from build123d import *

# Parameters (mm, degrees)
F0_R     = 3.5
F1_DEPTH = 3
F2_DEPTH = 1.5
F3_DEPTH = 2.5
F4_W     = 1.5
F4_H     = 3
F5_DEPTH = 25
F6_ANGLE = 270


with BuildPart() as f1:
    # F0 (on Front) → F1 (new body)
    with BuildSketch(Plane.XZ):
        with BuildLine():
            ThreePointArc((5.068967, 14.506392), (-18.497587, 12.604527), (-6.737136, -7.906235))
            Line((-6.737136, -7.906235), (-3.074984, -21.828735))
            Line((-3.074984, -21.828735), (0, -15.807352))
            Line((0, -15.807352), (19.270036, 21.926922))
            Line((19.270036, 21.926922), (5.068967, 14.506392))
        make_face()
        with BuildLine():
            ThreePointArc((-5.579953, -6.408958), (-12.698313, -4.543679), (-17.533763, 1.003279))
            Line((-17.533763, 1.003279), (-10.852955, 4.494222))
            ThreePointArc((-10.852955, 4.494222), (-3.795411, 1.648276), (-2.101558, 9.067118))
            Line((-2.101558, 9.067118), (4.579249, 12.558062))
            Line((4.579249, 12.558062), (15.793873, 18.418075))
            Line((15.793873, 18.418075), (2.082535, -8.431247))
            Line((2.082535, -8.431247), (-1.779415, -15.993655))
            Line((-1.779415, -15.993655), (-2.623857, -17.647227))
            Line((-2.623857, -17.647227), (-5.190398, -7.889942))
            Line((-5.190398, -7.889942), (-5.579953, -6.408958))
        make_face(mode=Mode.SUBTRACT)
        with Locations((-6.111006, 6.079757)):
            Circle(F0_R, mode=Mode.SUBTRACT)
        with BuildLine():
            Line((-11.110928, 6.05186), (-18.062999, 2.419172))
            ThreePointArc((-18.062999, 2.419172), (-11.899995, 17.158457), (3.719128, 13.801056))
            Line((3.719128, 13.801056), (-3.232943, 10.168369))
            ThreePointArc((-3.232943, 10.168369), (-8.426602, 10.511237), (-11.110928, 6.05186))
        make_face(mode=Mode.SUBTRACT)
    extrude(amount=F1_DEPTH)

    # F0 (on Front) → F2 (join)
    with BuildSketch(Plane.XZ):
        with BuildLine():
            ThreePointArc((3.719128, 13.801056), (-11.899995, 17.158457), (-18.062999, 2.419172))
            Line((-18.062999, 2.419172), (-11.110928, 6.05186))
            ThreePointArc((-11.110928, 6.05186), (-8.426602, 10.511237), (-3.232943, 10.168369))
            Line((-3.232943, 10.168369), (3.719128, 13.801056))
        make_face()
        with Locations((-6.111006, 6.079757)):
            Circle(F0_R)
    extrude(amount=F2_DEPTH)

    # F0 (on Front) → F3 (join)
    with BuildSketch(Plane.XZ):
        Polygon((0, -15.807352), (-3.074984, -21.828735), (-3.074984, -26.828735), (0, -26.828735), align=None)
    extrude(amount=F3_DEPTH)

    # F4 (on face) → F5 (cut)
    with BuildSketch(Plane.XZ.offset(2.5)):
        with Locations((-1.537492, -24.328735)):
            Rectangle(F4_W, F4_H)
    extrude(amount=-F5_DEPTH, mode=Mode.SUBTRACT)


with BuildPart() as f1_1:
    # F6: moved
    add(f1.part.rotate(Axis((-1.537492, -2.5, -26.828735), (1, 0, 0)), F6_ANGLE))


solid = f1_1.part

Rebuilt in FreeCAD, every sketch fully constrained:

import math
import FreeCAD as App
import Part
import Sketcher

V = App.Vector
Q = App.Units.Quantity

doc = App.newDocument("Part")
body = doc.addObject("PartDesign::Body", "Body")

sketch1 = doc.addObject("Sketcher::SketchObject", "Sketch")
body.addObject(sketch1)
sketch1.AttachmentSupport = (doc.XZ_Plane, [""])
sketch1.MapMode = "FlatFace"
sketch1.addGeometry(Part.ArcOfCircle(Part.Circle(V(-6.1, 6.1, 0), V(0, 0, 1), 14), math.radians(37), math.radians(267)), False)
sketch1.addGeometry(Part.LineSegment(V(-6.7, -7.9, 0), V(-3.1, -21.8, 0)), False)
sketch1.addGeometry(Part.LineSegment(V(-3.1, -21.8, 0), V(0, -15.8, 0)), False)
sketch1.addGeometry(Part.LineSegment(V(0, -15.8, 0), V(19.3, 21.9, 0)), False)
sketch1.addGeometry(Part.LineSegment(V(19.3, 21.9, 0), V(5.1, 14.5, 0)), False)
sketch1.addGeometry(Part.LineSegment(V(-5.2, -7.9, 0), V(-5.6, -6.4, 0)), False)
sketch1.addGeometry(Part.ArcOfCircle(Part.Circle(V(-6.1, 6.1, 0), V(0, 0, 1), 12.5), math.radians(-156), math.radians(-88)), False)
sketch1.addGeometry(Part.LineSegment(V(-17.5, 1, 0), V(-10.9, 4.5, 0)), False)
sketch1.addGeometry(Part.ArcOfCircle(Part.Circle(V(-6.1, 6.1, 0), V(0, 0, 1), 5), math.radians(-162), math.radians(37)), False)
sketch1.addGeometry(Part.LineSegment(V(-2.1, 9.1, 0), V(4.6, 12.6, 0)), False)
sketch1.addGeometry(Part.LineSegment(V(4.6, 12.6, 0), V(15.8, 18.4, 0)), False)
sketch1.addGeometry(Part.LineSegment(V(15.8, 18.4, 0), V(2.1, -8.4, 0)), False)
sketch1.addGeometry(Part.LineSegment(V(2.1, -8.4, 0), V(-1.8, -16, 0)), False)
sketch1.addGeometry(Part.LineSegment(V(-1.8, -16, 0), V(-2.6, -17.6, 0)), False)
sketch1.addGeometry(Part.LineSegment(V(-2.6, -17.6, 0), V(-5.2, -7.9, 0)), False)
sketch1.addGeometry(Part.Circle(V(-6.1, 6.1, 0), V(0, 0, 1), 3.5), False)
sketch1.addGeometry(Part.ArcOfCircle(Part.Circle(V(-6.1, 6.1, 0), V(0, 0, 1), 5), math.radians(55), math.radians(180)), False)
sketch1.addGeometry(Part.LineSegment(V(-11.1, 6.1, 0), V(-18.1, 2.4, 0)), False)
sketch1.addGeometry(Part.ArcOfCircle(Part.Circle(V(-6.1, 6.1, 0), V(0, 0, 1), 12.5), math.radians(38), math.radians(197)), False)
sketch1.addGeometry(Part.LineSegment(V(3.7, 13.8, 0), V(-3.2, 10.2, 0)), False)
sketch1.addConstraint(Sketcher.Constraint("Coincident", 0, 2, 1, 1))
sketch1.addConstraint(Sketcher.Constraint("Coincident", 1, 2, 2, 1))
sketch1.addConstraint(Sketcher.Constraint("Coincident", 2, 2, 3, 1))
sketch1.addConstraint(Sketcher.Constraint("Coincident", 3, 2, 4, 1))
sketch1.addConstraint(Sketcher.Constraint("Coincident", 4, 2, 0, 1))
sketch1.addConstraint(Sketcher.Constraint("Coincident", 5, 2, 6, 2))
sketch1.addConstraint(Sketcher.Constraint("Coincident", 6, 1, 7, 1))
sketch1.addConstraint(Sketcher.Constraint("Coincident", 7, 2, 8, 1))
sketch1.addConstraint(Sketcher.Constraint("Coincident", 8, 2, 9, 1))
sketch1.addConstraint(Sketcher.Constraint("Coincident", 9, 2, 10, 1))
sketch1.addConstraint(Sketcher.Constraint("Coincident", 10, 2, 11, 1))
sketch1.addConstraint(Sketcher.Constraint("Coincident", 11, 2, 12, 1))
sketch1.addConstraint(Sketcher.Constraint("Coincident", 12, 2, 13, 1))
sketch1.addConstraint(Sketcher.Constraint("Coincident", 13, 2, 14, 1))
sketch1.addConstraint(Sketcher.Constraint("Coincident", 14, 2, 5, 1))
sketch1.addConstraint(Sketcher.Constraint("Coincident", 16, 2, 17, 1))
sketch1.addConstraint(Sketcher.Constraint("Coincident", 17, 2, 18, 2))
sketch1.addConstraint(Sketcher.Constraint("Coincident", 18, 1, 19, 1))
sketch1.addConstraint(Sketcher.Constraint("Coincident", 19, 2, 16, 1))
sketch1.addConstraint(Sketcher.Constraint("Coincident", 6, 3, 0, 3))
sketch1.addConstraint(Sketcher.Constraint("Coincident", 8, 3, 0, 3))
sketch1.addConstraint(Sketcher.Constraint("Coincident", 15, 3, 0, 3))
sketch1.addConstraint(Sketcher.Constraint("Coincident", 16, 3, 0, 3))
sketch1.addConstraint(Sketcher.Constraint("Coincident", 18, 3, 0, 3))
sketch1.addConstraint(Sketcher.Constraint("Equal", 8, 16))
sketch1.addConstraint(Sketcher.Constraint("Equal", 6, 18))
sketch1.addConstraint(Sketcher.Constraint("PointOnObject", 2, 2, -2))
sketch1.addConstraint(Sketcher.Constraint("Parallel", 2, 3))
sketch1.addConstraint(Sketcher.Constraint("Parallel", 1, 5))
sketch1.addConstraint(Sketcher.Constraint("Parallel", 4, 7))
sketch1.addConstraint(Sketcher.Constraint("Parallel", 7, 9))
sketch1.addConstraint(Sketcher.Constraint("Parallel", 9, 10))
sketch1.addConstraint(Sketcher.Constraint("Parallel", 3, 11))
sketch1.addConstraint(Sketcher.Constraint("Parallel", 11, 12))
sketch1.addConstraint(Sketcher.Constraint("Parallel", 12, 13))
sketch1.addConstraint(Sketcher.Constraint("Parallel", 5, 14))
sketch1.addConstraint(Sketcher.Constraint("Parallel", 10, 17))
sketch1.addConstraint(Sketcher.Constraint("Parallel", 17, 19))
sketch1.addConstraint(Sketcher.Constraint("Equal", 7, 9))
sketch1.addConstraint(Sketcher.Constraint("Equal", 17, 19))
sketch1.addConstraint(Sketcher.Constraint("Diameter", 15, Q("7 mm")))
sketch1.addConstraint(Sketcher.Constraint("Radius", 0, Q("14 mm")))
sketch1.addConstraint(Sketcher.Constraint("Radius", 8, Q("5 mm")))
sketch1.addConstraint(Sketcher.Constraint("Radius", 6, Q("12.500002 mm")))
sketch1.addConstraint(Sketcher.Constraint("DistanceX", 17, 2, -1, 1, Q("18.062999 mm")))
sketch1.addConstraint(Sketcher.Constraint("DistanceY", 1, 2, 0, 2, Q("13.9225 mm")))
sketch1.addConstraint(Sketcher.Constraint("DistanceY", 15, 3, 18, 1, Q("7.721299 mm")))
sketch1.addConstraint(Sketcher.Constraint("Distance", 1, Q("14.396088 mm")))
sketch1.addConstraint(Sketcher.Constraint("Distance", 4, Q("16.022941 mm")))
sketch1.addConstraint(Sketcher.Constraint("Distance", 5, Q("1.531361 mm")))
sketch1.addConstraint(Sketcher.Constraint("Distance", 10, Q("12.653361 mm")))
sketch1.addConstraint(Sketcher.Constraint("Distance", 11, Q("30.147751 mm")))
sketch1.addConstraint(Sketcher.Constraint("Distance", 14, Q("10.089189 mm")))
sketch1.addConstraint(Sketcher.Constraint("Distance", 17, Q("7.84396 mm")))
sketch1.addConstraint(Sketcher.Constraint("DistanceY", -1, 1, 6, 3, Q("6.079758 mm")))
sketch1.addConstraint(Sketcher.Constraint("DistanceY", -1, 1, 6, 1, Q("1.003279 mm")))
sketch1.addConstraint(Sketcher.Constraint("DistanceY", -1, 1, 8, 2, Q("9.067118 mm")))
sketch1.addConstraint(Sketcher.Constraint("DistanceY", 14, 2, -1, 1, Q("7.889942 mm")))
sketch1.addConstraint(Sketcher.Constraint("DistanceX", 0, 2, 18, 3, Q("0.62613 mm")))
sketch1.addConstraint(Sketcher.Constraint("DistanceX", 1, 2, 12, 2, Q("1.295569 mm")))
pad1 = doc.addObject("PartDesign::Pad", "Pad")
body.addObject(pad1)
pad1.Profile = sketch1
pad1.Length = 3

sketch2 = doc.addObject("Sketcher::SketchObject", "Sketch001")
body.addObject(sketch2)
sketch2.AttachmentSupport = (doc.XZ_Plane, [""])
sketch2.MapMode = "FlatFace"
sketch2.addGeometry(Part.ArcOfCircle(Part.Circle(V(-6.1, 6.1, 0), V(0, 0, 1), 12.5), math.radians(38), math.radians(197)), False)
sketch2.addGeometry(Part.LineSegment(V(-18.1, 2.4, 0), V(-11.1, 6.1, 0)), False)
sketch2.addGeometry(Part.ArcOfCircle(Part.Circle(V(-6.1, 6.1, 0), V(0, 0, 1), 5), math.radians(55), math.radians(180)), False)
sketch2.addGeometry(Part.LineSegment(V(-3.2, 10.2, 0), V(3.7, 13.8, 0)), False)
sketch2.addGeometry(Part.Circle(V(-6.1, 6.1, 0), V(0, 0, 1), 3.5), False)
sketch2.addConstraint(Sketcher.Constraint("Coincident", 0, 2, 1, 1))
sketch2.addConstraint(Sketcher.Constraint("Coincident", 1, 2, 2, 2))
sketch2.addConstraint(Sketcher.Constraint("Coincident", 2, 1, 3, 1))
sketch2.addConstraint(Sketcher.Constraint("Coincident", 3, 2, 0, 1))
sketch2.addConstraint(Sketcher.Constraint("Coincident", 2, 3, 0, 3))
sketch2.addConstraint(Sketcher.Constraint("Coincident", 4, 3, 0, 3))
sketch2.addConstraint(Sketcher.Constraint("Parallel", 1, 3))
sketch2.addConstraint(Sketcher.Constraint("Equal", 1, 3))
sketch2.addConstraint(Sketcher.Constraint("Diameter", 4, Q("7 mm")))
sketch2.addConstraint(Sketcher.Constraint("Radius", 2, Q("4.999999 mm")))
sketch2.addConstraint(Sketcher.Constraint("Radius", 0, Q("12.5 mm")))
sketch2.addConstraint(Sketcher.Constraint("DistanceX", 0, 2, -1, 1, Q("18.062999 mm")))
sketch2.addConstraint(Sketcher.Constraint("DistanceY", 4, 3, 3, 2, Q("7.721299 mm")))
sketch2.addConstraint(Sketcher.Constraint("Distance", 1, Q("7.84396 mm")))
sketch2.addConstraint(Sketcher.Constraint("DistanceY", -1, 1, 1, 2, Q("6.05186 mm")))
pad2 = doc.addObject("PartDesign::Pad", "Pad001")
body.addObject(pad2)
pad2.Profile = sketch2
pad2.Length = 1.5

sketch3 = doc.addObject("Sketcher::SketchObject", "Sketch002")
body.addObject(sketch3)
sketch3.AttachmentSupport = (doc.XZ_Plane, [""])
sketch3.MapMode = "FlatFace"
sketch3.addGeometry(Part.LineSegment(V(0, -15.8, 0), V(-3.1, -21.8, 0)), False)
sketch3.addGeometry(Part.LineSegment(V(-3.1, -21.8, 0), V(-3.1, -26.8, 0)), False)
sketch3.addGeometry(Part.LineSegment(V(-3.1, -26.8, 0), V(0, -26.8, 0)), False)
sketch3.addGeometry(Part.LineSegment(V(0, -26.8, 0), V(0, -15.8, 0)), False)
sketch3.addConstraint(Sketcher.Constraint("Coincident", 0, 2, 1, 1))
sketch3.addConstraint(Sketcher.Constraint("Coincident", 1, 2, 2, 1))
sketch3.addConstraint(Sketcher.Constraint("Coincident", 2, 2, 3, 1))
sketch3.addConstraint(Sketcher.Constraint("Coincident", 3, 2, 0, 1))
sketch3.addConstraint(Sketcher.Constraint("Vertical", 1))
sketch3.addConstraint(Sketcher.Constraint("Horizontal", 2))
sketch3.addConstraint(Sketcher.Constraint("Vertical", 3))
sketch3.addConstraint(Sketcher.Constraint("PointOnObject", 2, 2, -2))
sketch3.addConstraint(Sketcher.Constraint("DistanceY", 1, 2, 1, 1, Q("5 mm")))
sketch3.addConstraint(Sketcher.Constraint("DistanceX", 2, 1, 2, 2, Q("3.074984 mm")))
sketch3.addConstraint(Sketcher.Constraint("DistanceY", 3, 1, 3, 2, Q("11.021383 mm")))
sketch3.addConstraint(Sketcher.Constraint("DistanceY", 0, 2, -1, 1, Q("21.828735 mm")))
pad3 = doc.addObject("PartDesign::Pad", "Pad002")
body.addObject(pad3)
pad3.Profile = sketch3
pad3.Length = 2.5

sketch4 = doc.addObject("Sketcher::SketchObject", "Sketch003")
body.addObject(sketch4)
sketch4.AttachmentSupport = (doc.XZ_Plane, [""])
sketch4.MapMode = "FlatFace"
sketch4.AttachmentOffset = App.Placement(V(0, 0, 2.5), App.Rotation())
sketch4.addGeometry(Part.LineSegment(V(-2.3, -22.8, 0), V(-2.3, -25.8, 0)), False)
sketch4.addGeometry(Part.LineSegment(V(-2.3, -25.8, 0), V(-0.8, -25.8, 0)), False)
sketch4.addGeometry(Part.LineSegment(V(-0.8, -25.8, 0), V(-0.8, -22.8, 0)), False)
sketch4.addGeometry(Part.LineSegment(V(-0.8, -22.8, 0), V(-2.3, -22.8, 0)), False)
sketch4.addConstraint(Sketcher.Constraint("Coincident", 0, 2, 1, 1))
sketch4.addConstraint(Sketcher.Constraint("Coincident", 1, 2, 2, 1))
sketch4.addConstraint(Sketcher.Constraint("Coincident", 2, 2, 3, 1))
sketch4.addConstraint(Sketcher.Constraint("Coincident", 3, 2, 0, 1))
sketch4.addConstraint(Sketcher.Constraint("Vertical", 0))
sketch4.addConstraint(Sketcher.Constraint("Horizontal", 1))
sketch4.addConstraint(Sketcher.Constraint("Vertical", 2))
sketch4.addConstraint(Sketcher.Constraint("Horizontal", 3))
sketch4.addConstraint(Sketcher.Constraint("DistanceY", 0, 2, 0, 1, Q("3 mm")))
sketch4.addConstraint(Sketcher.Constraint("DistanceX", 1, 1, 1, 2, Q("1.5 mm")))
sketch4.addConstraint(Sketcher.Constraint("DistanceX", 0, 2, -1, 1, Q("2.287492 mm")))
sketch4.addConstraint(Sketcher.Constraint("DistanceY", 0, 2, -1, 1, Q("25.828735 mm")))
pocket1 = doc.addObject("PartDesign::Pocket", "Pocket")
body.addObject(pocket1)
pocket1.Profile = sketch4
pocket1.Length = 25
body2 = doc.addObject("PartDesign::Body", "Body001")
doc.recompute()

body.Placement = App.Placement(V(0, 24.328735, -29.328735), App.Rotation(V(1, 0, 0), 270))
boolean = doc.addObject("PartDesign::Boolean", "Boolean")
body2.addObject(boolean)
boolean.Type = "Fuse"
boolean.addObjects([body])

doc.recompute()
